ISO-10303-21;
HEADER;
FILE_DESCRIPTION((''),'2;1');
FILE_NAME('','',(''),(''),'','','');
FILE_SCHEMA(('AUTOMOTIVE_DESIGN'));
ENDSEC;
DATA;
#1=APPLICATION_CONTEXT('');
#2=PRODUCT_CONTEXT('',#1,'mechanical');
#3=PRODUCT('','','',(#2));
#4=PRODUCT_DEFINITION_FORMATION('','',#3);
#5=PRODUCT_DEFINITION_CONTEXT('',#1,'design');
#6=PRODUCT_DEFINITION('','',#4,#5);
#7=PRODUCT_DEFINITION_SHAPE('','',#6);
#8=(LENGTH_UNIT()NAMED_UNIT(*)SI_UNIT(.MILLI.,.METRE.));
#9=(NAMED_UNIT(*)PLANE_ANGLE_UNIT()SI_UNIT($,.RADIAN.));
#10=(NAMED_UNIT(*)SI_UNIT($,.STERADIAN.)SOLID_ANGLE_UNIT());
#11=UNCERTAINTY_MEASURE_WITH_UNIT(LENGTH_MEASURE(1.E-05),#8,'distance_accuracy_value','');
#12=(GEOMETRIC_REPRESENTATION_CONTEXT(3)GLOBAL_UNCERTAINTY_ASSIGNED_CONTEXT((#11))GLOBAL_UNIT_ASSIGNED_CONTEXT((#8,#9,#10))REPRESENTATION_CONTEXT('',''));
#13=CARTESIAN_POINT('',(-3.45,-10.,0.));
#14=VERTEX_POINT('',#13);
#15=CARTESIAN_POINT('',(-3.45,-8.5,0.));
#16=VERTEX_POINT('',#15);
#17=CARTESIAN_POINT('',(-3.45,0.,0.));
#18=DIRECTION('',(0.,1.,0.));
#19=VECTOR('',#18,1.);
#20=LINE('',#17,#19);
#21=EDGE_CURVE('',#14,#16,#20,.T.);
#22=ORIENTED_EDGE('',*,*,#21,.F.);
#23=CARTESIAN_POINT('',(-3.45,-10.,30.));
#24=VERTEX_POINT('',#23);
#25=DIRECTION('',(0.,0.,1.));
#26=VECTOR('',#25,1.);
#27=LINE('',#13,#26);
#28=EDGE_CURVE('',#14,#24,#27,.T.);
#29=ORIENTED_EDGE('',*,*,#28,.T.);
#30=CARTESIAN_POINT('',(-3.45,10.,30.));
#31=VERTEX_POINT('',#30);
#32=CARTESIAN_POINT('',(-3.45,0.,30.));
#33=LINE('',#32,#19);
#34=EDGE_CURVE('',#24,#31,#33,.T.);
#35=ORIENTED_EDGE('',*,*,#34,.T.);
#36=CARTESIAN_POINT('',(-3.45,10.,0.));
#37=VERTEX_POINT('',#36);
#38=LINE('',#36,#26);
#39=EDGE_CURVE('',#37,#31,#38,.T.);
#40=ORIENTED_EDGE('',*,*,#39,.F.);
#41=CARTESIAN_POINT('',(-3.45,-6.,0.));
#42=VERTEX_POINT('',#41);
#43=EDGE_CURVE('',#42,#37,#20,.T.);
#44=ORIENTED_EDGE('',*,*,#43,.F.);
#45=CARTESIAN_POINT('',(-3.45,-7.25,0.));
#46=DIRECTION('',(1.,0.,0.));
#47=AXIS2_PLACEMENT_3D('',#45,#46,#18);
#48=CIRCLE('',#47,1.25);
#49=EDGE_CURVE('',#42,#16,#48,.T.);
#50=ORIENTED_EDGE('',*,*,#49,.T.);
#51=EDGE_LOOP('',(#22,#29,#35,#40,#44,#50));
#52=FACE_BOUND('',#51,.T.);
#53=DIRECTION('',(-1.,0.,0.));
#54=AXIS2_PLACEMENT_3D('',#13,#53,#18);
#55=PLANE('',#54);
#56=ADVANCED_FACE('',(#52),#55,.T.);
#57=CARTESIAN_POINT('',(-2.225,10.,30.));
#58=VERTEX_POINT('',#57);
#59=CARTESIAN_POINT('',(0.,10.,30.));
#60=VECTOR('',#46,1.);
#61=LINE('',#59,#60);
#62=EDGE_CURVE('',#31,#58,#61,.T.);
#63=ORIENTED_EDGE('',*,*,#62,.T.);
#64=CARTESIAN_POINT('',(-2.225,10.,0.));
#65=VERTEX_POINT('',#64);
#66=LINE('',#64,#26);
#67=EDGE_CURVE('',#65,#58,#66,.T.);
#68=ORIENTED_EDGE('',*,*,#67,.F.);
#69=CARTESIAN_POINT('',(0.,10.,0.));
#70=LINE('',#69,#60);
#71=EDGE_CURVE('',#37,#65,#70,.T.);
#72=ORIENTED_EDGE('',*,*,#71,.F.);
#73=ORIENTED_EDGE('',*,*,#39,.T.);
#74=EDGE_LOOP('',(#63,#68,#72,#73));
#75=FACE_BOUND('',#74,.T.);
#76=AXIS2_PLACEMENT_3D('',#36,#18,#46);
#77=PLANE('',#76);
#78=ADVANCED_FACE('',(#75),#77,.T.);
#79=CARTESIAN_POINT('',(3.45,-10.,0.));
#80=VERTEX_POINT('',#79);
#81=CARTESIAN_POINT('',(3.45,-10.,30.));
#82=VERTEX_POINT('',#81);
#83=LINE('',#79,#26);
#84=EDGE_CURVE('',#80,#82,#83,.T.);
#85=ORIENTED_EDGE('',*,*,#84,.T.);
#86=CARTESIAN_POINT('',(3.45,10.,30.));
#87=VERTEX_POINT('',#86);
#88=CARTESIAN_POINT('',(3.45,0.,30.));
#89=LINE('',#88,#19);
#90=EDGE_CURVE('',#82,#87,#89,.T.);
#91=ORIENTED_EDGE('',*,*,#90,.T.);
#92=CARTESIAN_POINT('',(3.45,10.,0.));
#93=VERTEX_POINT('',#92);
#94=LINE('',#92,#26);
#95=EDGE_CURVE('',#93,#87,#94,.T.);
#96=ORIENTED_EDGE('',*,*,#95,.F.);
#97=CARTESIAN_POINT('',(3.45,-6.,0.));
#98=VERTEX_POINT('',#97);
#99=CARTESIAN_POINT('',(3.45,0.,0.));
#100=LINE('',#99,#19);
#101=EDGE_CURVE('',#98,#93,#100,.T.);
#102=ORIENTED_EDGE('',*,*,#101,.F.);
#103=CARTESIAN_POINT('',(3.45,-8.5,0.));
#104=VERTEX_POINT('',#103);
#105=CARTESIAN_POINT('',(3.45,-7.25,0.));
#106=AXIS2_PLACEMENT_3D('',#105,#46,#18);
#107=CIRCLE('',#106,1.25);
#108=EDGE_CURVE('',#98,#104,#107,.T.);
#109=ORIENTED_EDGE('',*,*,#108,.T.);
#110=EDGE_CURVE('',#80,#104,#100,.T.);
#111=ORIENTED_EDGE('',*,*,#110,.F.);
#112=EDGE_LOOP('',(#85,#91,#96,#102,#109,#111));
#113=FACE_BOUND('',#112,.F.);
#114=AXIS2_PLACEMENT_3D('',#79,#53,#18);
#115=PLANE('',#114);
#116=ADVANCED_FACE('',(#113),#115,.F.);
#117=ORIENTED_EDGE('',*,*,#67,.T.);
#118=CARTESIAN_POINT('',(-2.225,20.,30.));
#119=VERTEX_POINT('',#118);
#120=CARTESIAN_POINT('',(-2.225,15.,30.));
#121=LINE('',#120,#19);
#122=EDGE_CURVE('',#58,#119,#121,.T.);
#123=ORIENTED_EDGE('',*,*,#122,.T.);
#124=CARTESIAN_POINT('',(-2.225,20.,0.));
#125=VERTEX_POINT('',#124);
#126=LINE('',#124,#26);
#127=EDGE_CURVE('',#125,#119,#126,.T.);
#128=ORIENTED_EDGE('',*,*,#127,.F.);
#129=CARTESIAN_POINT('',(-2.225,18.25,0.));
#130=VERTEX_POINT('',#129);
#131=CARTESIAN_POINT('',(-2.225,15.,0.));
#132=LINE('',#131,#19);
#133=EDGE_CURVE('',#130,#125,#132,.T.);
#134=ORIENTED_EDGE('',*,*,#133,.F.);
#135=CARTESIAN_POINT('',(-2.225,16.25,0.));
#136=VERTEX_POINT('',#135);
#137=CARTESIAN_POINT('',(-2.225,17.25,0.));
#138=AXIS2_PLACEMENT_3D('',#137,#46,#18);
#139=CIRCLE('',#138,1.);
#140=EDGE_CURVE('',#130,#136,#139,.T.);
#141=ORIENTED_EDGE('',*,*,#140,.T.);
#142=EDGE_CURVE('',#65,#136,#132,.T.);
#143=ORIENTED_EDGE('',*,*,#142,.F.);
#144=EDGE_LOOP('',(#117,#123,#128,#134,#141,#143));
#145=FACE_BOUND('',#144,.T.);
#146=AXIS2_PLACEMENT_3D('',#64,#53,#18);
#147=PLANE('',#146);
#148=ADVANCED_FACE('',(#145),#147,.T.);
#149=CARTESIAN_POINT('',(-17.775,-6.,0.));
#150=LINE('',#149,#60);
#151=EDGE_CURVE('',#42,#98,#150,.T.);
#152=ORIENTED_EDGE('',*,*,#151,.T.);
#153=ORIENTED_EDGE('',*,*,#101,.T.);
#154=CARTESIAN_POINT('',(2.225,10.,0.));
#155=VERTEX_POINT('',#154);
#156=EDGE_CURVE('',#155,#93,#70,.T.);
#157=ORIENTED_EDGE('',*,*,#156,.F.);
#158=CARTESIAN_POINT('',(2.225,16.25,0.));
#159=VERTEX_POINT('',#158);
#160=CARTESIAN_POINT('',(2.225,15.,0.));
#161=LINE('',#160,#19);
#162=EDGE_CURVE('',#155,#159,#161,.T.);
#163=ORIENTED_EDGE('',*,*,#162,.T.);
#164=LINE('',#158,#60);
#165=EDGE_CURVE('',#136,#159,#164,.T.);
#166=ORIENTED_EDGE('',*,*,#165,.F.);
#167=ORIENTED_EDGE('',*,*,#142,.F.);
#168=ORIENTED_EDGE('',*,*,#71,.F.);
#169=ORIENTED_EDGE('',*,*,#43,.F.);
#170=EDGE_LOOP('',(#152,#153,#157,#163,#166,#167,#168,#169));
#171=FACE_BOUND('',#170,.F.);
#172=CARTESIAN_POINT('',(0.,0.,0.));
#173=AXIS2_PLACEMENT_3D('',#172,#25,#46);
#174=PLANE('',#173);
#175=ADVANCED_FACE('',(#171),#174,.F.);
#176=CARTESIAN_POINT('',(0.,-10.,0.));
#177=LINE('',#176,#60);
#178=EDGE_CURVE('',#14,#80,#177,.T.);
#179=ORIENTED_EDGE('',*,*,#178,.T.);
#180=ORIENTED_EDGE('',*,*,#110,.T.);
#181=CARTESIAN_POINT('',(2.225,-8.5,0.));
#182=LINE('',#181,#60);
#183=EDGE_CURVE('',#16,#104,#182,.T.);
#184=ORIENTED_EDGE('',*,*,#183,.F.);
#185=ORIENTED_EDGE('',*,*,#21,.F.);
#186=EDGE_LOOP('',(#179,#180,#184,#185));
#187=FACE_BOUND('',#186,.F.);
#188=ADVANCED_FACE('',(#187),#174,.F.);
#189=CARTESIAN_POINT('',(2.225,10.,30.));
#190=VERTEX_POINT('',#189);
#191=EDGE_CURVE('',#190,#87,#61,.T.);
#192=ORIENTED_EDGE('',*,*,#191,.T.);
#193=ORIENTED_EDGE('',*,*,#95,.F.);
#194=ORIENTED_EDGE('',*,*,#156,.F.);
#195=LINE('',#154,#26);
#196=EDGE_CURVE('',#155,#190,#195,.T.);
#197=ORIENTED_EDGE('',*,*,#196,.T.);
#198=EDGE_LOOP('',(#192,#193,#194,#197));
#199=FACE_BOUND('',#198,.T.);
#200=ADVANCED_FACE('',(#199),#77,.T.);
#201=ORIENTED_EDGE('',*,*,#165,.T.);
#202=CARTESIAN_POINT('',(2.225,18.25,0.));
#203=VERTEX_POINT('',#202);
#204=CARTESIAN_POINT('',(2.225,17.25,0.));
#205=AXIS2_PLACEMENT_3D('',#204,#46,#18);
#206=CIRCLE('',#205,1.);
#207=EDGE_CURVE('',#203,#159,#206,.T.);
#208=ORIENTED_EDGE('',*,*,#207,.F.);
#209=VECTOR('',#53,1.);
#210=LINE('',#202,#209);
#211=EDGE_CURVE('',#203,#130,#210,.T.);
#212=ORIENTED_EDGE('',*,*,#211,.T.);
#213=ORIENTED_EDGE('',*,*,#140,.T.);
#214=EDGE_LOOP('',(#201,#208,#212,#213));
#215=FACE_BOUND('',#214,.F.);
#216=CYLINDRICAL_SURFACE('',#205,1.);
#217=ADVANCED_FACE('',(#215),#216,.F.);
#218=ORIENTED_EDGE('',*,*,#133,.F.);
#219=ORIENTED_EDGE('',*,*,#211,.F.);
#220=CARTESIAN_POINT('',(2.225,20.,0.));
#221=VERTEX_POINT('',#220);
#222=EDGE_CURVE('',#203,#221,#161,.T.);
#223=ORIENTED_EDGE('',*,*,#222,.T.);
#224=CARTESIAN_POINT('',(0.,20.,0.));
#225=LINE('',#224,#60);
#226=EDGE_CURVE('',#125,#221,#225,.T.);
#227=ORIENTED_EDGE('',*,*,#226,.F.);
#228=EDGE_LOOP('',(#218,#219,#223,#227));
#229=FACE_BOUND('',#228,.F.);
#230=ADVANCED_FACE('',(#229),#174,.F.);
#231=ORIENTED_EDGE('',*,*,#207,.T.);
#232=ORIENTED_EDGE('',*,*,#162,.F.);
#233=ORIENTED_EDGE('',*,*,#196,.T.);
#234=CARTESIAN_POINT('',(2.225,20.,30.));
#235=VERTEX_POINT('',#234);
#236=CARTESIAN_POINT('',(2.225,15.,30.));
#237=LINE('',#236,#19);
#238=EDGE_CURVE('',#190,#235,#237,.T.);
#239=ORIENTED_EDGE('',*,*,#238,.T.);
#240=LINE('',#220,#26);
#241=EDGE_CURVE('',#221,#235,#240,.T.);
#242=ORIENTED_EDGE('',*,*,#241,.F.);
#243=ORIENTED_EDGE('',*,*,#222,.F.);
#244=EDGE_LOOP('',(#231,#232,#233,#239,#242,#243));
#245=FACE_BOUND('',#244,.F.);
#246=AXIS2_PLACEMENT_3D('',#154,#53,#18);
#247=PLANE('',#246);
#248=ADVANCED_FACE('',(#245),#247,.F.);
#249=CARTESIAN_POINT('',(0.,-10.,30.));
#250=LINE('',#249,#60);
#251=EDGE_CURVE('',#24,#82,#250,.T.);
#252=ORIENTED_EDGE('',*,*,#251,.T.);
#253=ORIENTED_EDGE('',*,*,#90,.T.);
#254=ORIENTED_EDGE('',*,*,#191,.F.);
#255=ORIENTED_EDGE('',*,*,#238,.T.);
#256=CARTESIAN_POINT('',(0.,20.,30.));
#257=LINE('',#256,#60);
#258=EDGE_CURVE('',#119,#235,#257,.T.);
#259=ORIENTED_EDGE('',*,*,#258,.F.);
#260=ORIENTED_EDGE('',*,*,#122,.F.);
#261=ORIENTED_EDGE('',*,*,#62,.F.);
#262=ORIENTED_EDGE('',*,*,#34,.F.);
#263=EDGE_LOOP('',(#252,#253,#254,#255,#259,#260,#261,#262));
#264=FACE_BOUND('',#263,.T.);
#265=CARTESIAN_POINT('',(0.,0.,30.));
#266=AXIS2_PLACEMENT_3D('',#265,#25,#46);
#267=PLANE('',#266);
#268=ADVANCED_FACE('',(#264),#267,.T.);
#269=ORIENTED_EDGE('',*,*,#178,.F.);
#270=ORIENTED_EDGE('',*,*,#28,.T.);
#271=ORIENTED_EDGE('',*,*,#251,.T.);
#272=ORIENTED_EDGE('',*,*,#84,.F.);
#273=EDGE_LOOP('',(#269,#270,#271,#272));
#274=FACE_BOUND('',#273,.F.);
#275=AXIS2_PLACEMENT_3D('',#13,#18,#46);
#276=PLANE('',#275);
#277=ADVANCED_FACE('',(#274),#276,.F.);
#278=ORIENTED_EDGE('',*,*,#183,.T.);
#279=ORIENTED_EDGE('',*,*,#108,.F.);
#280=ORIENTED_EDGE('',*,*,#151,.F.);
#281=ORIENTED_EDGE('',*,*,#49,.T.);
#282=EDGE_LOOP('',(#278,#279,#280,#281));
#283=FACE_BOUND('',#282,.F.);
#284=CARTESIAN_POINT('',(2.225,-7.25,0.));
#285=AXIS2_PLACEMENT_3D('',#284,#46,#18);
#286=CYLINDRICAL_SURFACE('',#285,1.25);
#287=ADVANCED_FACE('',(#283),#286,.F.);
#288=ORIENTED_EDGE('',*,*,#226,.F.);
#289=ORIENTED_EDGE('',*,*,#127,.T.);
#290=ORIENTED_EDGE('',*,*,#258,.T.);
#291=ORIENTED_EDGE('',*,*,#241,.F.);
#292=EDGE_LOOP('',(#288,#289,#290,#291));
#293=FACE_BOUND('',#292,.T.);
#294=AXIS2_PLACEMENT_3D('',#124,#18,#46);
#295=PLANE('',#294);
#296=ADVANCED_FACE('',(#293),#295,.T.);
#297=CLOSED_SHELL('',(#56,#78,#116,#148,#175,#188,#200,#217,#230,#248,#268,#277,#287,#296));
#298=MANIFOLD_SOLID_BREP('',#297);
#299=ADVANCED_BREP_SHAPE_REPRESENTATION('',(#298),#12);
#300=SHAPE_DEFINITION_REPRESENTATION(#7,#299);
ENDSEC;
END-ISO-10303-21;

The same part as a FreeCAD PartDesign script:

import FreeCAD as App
import Part
import Sketcher


def add_polygon(sketch, points):
    """Adds a closed chain of lines whose ends are joined by coincident constraints."""
    first, n = sketch.GeometryCount, len(points)
    for a, b in zip(points, points[1:] + points[:1]):
        sketch.addGeometry(Part.LineSegment(App.Vector(*a, 0), App.Vector(*b, 0)), False)
    for i in range(n):
        sketch.addConstraint(Sketcher.Constraint("Coincident", first + i, 2, first + (i + 1) % n, 1))

doc = App.newDocument("Part")
body = doc.addObject("PartDesign::Body", "Body")

# Sketch on XY plane
sketch1 = doc.addObject("Sketcher::SketchObject", "Sketch")
body.addObject(sketch1)
sketch1.AttachmentSupport = (doc.XY_Plane, [""])
sketch1.MapMode = "FlatFace"
add_polygon(sketch1, [(-3.45, 10), (-3.45, -10), (3.45, -10), (3.45, 10)])  # lines 0-3
sketch1.addConstraint([
    Sketcher.Constraint("Vertical", 0),
    Sketcher.Constraint("Horizontal", 1),
    Sketcher.Constraint("Vertical", 2),
    Sketcher.Constraint("Horizontal", 3),
    Sketcher.Constraint("Symmetric", 0, 2, 2, 2, -1, 1),
    Sketcher.Constraint("DistanceY", 0, 2, 0, 1, 20.0),
    Sketcher.Constraint("DistanceX", 1, 1, 1, 2, 6.9),
])
pad1 = doc.addObject("PartDesign::Pad", "Pad")
body.addObject(pad1)
pad1.Profile = sketch1
pad1.Length = 30

# Sketch on XY plane
sketch2 = doc.addObject("Sketcher::SketchObject", "Sketch001")
body.addObject(sketch2)
sketch2.AttachmentSupport = (doc.XY_Plane, [""])
sketch2.MapMode = "FlatFace"
add_polygon(sketch2, [(-2.225, 20), (-2.225, 10), (2.225, 10), (2.225, 20)])  # lines 0-3
sketch2.addConstraint([
    Sketcher.Constraint("Vertical", 0),
    Sketcher.Constraint("Horizontal", 1),
    Sketcher.Constraint("Vertical", 2),
    Sketcher.Constraint("Horizontal", 3),
    Sketcher.Constraint("DistanceY", 0, 2, 0, 1, 10.0),
    Sketcher.Constraint("DistanceY", -1, 1, 0, 2, 10.0),
    Sketcher.Constraint("DistanceX", 1, 1, 1, 2, 4.45),
    Sketcher.Constraint("DistanceX", 0, 2, -1, 1, 2.225),
])
pad2 = doc.addObject("PartDesign::Pad", "Pad001")
body.addObject(pad2)
pad2.Profile = sketch2
pad2.Length = 30

# Sketch on YZ plane
sketch3 = doc.addObject("Sketcher::SketchObject", "Sketch002")
body.addObject(sketch3)
sketch3.AttachmentSupport = (doc.YZ_Plane, [""])
sketch3.MapMode = "FlatFace"
sketch3.AttachmentOffset = App.Placement(App.Vector(0, 0, 2.225), App.Rotation())
sketch3.addGeometry([
    Part.Circle(App.Vector(17.25, 0, 0), App.Vector(0, 0, 1), 1),
    Part.Circle(App.Vector(-7.25, 0, 0), App.Vector(0, 0, 1), 1.25),
], False)
sketch3.addConstraint([
    Sketcher.Constraint("PointOnObject", 0, 3, -1),
    Sketcher.Constraint("PointOnObject", 1, 3, -1),
    Sketcher.Constraint("Diameter", 0, 2.0),
    Sketcher.Constraint("Diameter", 1, 2.5),
    Sketcher.Constraint("DistanceX", 1, 3, 0, 3, 24.5),
    Sketcher.Constraint("DistanceX", -1, 1, 0, 3, 17.25),
])
pocket1 = doc.addObject("PartDesign::Pocket", "Pocket")
body.addObject(pocket1)
pocket1.Profile = sketch3
pocket1.Length = 40
pocket1.Midplane = True

doc.recompute()
